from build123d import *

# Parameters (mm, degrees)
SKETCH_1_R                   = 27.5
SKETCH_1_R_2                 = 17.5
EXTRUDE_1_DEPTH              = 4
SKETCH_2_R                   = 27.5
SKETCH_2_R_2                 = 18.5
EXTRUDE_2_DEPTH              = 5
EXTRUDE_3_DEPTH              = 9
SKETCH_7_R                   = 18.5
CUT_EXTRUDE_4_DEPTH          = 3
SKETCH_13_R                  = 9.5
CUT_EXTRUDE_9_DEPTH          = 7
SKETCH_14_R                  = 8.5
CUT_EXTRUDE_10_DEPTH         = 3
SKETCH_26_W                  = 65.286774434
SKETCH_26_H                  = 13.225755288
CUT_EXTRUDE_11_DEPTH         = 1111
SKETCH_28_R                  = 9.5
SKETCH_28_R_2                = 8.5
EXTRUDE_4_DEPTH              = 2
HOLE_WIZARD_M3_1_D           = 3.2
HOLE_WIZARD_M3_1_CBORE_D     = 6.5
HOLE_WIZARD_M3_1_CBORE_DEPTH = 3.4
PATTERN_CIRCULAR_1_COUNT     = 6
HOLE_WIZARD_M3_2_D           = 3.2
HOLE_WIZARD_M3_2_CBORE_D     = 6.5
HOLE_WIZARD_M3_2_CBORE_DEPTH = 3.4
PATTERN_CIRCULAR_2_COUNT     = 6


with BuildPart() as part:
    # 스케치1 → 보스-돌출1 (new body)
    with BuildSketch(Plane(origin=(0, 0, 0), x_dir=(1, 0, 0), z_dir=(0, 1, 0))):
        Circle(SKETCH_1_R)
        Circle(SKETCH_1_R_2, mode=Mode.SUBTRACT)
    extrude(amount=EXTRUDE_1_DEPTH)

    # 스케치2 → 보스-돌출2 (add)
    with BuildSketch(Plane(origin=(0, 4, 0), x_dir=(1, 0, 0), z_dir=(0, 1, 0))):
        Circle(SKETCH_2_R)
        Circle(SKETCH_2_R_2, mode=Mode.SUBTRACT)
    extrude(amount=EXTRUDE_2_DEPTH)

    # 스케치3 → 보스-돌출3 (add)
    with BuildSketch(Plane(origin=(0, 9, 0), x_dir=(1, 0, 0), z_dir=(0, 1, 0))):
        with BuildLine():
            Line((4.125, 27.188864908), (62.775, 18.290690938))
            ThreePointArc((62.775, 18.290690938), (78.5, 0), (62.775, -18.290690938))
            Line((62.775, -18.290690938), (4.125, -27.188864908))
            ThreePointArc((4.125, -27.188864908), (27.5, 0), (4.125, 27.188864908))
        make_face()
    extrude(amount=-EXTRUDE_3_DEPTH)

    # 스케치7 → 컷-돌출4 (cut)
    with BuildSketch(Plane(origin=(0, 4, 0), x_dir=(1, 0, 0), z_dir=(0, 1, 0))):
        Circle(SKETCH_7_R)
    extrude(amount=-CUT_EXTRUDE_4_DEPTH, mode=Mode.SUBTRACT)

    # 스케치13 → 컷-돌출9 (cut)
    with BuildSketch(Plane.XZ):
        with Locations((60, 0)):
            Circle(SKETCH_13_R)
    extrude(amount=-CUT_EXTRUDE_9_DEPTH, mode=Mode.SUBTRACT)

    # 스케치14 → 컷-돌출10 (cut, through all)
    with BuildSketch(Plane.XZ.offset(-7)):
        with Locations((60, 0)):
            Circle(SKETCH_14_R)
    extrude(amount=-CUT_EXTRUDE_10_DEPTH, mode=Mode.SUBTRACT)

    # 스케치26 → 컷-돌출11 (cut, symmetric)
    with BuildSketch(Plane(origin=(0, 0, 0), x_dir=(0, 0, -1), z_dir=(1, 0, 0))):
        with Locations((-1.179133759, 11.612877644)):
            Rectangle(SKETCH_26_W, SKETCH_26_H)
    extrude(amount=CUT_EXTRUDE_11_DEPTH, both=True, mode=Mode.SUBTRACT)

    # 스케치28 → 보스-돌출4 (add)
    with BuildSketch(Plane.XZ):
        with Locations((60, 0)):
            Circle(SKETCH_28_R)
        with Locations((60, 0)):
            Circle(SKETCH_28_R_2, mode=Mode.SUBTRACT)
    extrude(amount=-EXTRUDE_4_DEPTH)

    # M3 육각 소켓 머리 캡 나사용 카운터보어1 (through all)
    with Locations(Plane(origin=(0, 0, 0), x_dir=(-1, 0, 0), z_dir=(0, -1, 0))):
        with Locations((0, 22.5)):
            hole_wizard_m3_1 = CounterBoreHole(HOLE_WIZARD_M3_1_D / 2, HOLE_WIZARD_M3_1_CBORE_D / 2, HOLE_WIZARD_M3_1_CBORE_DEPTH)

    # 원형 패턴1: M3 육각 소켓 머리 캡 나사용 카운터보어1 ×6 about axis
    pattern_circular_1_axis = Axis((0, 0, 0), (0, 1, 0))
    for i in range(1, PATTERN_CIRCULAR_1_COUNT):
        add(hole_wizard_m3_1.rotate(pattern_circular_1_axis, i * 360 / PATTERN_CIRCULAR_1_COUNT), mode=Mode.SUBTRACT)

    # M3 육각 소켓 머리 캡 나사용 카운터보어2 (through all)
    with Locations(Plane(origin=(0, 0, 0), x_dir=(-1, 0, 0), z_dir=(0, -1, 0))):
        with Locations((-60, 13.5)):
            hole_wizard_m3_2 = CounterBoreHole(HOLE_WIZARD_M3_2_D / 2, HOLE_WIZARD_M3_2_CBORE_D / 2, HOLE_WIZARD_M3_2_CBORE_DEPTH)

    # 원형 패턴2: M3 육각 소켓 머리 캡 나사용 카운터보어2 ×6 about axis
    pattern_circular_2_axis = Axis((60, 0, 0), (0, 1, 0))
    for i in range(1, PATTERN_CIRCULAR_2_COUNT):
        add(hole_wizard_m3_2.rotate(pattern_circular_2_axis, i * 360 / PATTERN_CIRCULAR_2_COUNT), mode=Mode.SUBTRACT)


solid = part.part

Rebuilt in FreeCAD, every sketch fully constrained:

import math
import FreeCAD as App
import Part
import Sketcher

V = App.Vector

doc = App.newDocument("Part")
params = doc.addObject("Spreadsheet::Sheet", "Params")
for row, (alias, value) in enumerate([
    ("sketch1_diameter", "55 mm"),
    ("sketch1_diameter2", "35 mm"),
    ("pad1_length", "4 mm"),
    ("sketch2_diameter", "55 mm"),
    ("sketch2_diameter2", "37 mm"),
    ("pad2_length", "5 mm"),
    ("sketch3_radius", "27.5 mm"),
    ("sketch3_radius2", "18.5 mm"),
    ("pad3_length", "9 mm"),
    ("sketch4_diameter", "37 mm"),
    ("pocket1_length", "3 mm"),
    ("sketch5_diameter", "19 mm"),
    ("pocket2_length", "7 mm"),
    ("sketch6_diameter", "17 mm"),
    ("pocket4_length", "2222 mm"),
    ("sketch8_diameter", "19 mm"),
    ("sketch8_diameter2", "17 mm"),
    ("pad4_length", "2 mm"),
    ("sketch9_diameter", "3.2 mm"),
    ("hole_diameter", "3.2 mm"),
    ("hole_cbore_diameter", "6.5 mm"),
    ("hole_cbore_depth", "3.4 mm"),
    ("sketch10_diameter", "3.2 mm"),
    ("hole2_diameter", "3.2 mm"),
    ("hole2_cbore_diameter", "6.5 mm"),
    ("hole2_cbore_depth", "3.4 mm"),
], start=1):
    params.set(f"A{row}", alias)
    params.set(f"B{row}", "=" + value)
    params.setAlias(f"B{row}", alias)

body = doc.addObject("PartDesign::Body", "Body")

# Sketch on XZ plane
sketch1 = body.newObject("Sketcher::SketchObject", "Sketch")
sketch1.AttachmentSupport = (doc.getObject("XZ_Plane"), [""])
sketch1.MapMode = "FlatFace"
sketch1.addGeometry(Part.Circle(V(0, 0, 0), V(0, 0, 1), 28), False)
sketch1.addGeometry(Part.Circle(V(0, 0, 0), V(0, 0, 1), 18), False)
sketch1.addConstraint(Sketcher.Constraint("Coincident", 0, 3, -1, 1))
sketch1.addConstraint(Sketcher.Constraint("Coincident", 1, 3, -1, 1))
sketch1.addConstraint(Sketcher.Constraint("Diameter", 0, 55.0))
sketch1.addConstraint(Sketcher.Constraint("Diameter", 1, 35.0))
sketch1.setExpression("Constraints[2]", "Params.sketch1_diameter")
sketch1.setExpression("Constraints[3]", "Params.sketch1_diameter2")
pad1 = body.newObject("PartDesign::Pad", "Pad")
pad1.Profile = sketch1
pad1.setExpression("Length", "Params.pad1_length")
pad1.Reversed = True

# Sketch on XZ plane
sketch2 = body.newObject("Sketcher::SketchObject", "Sketch001")
sketch2.AttachmentSupport = (doc.getObject("XZ_Plane"), [""])
sketch2.MapMode = "FlatFace"
sketch2.AttachmentOffset = App.Placement(V(0, 0, -4), App.Rotation())
sketch2.addGeometry(Part.Circle(V(0, 0, 0), V(0, 0, 1), 28), False)
sketch2.addGeometry(Part.Circle(V(0, 0, 0), V(0, 0, 1), 18), False)
sketch2.addConstraint(Sketcher.Constraint("Coincident", 0, 3, -1, 1))
sketch2.addConstraint(Sketcher.Constraint("Coincident", 1, 3, -1, 1))
sketch2.addConstraint(Sketcher.Constraint("Diameter", 0, 55.0))
sketch2.addConstraint(Sketcher.Constraint("Diameter", 1, 37.0))
sketch2.setExpression("Constraints[2]", "Params.sketch2_diameter")
sketch2.setExpression("Constraints[3]", "Params.sketch2_diameter2")
pad2 = body.newObject("PartDesign::Pad", "Pad001")
pad2.Profile = sketch2
pad2.setExpression("Length", "Params.pad2_length")
pad2.Reversed = True

# Sketch on XZ plane
sketch3 = body.newObject("Sketcher::SketchObject", "Sketch002")
sketch3.AttachmentSupport = (doc.getObject("XZ_Plane"), [""])
sketch3.MapMode = "FlatFace"
sketch3.AttachmentOffset = App.Placement(V(0, 0, -9), App.Rotation())
sketch3.addGeometry(Part.LineSegment(V(63, -18, 0), V(4, -27, 0)), False)
sketch3.addGeometry(Part.ArcOfCircle(Part.Circle(V(0, 0, 0), V(0, 0, 1), 28), math.radians(-81), math.radians(81)), False)
sketch3.addGeometry(Part.LineSegment(V(4, 27, 0), V(63, 18, 0)), False)
sketch3.addGeometry(Part.ArcOfCircle(Part.Circle(V(60, 0, 0), V(0, 0, 1), 18), math.radians(-81), math.radians(81)), False)
sketch3.addConstraint(Sketcher.Constraint("Tangent", 0, 2, 1, 1))
sketch3.addConstraint(Sketcher.Constraint("Tangent", 1, 2, 2, 1))
sketch3.addConstraint(Sketcher.Constraint("Tangent", 2, 2, 3, 2))
sketch3.addConstraint(Sketcher.Constraint("Tangent", 3, 1, 0, 1))
sketch3.addConstraint(Sketcher.Constraint("Coincident", 1, 3, -1, 1))
sketch3.addConstraint(Sketcher.Constraint("PointOnObject", 3, 3, -1))
sketch3.addConstraint(Sketcher.Constraint("Radius", 1, 27.5))
sketch3.addConstraint(Sketcher.Constraint("Radius", 3, 18.5))
sketch3.addConstraint(Sketcher.Constraint("DistanceX", -1, 1, 3, 3, 60.0))
sketch3.setExpression("Constraints[6]", "Params.sketch3_radius")
sketch3.setExpression("Constraints[7]", "Params.sketch3_radius2")
pad3 = body.newObject("PartDesign::Pad", "Pad002")
pad3.Profile = sketch3
pad3.setExpression("Length", "Params.pad3_length")

# Sketch on XZ plane
sketch4 = body.newObject("Sketcher::SketchObject", "Sketch003")
sketch4.AttachmentSupport = (doc.getObject("XZ_Plane"), [""])
sketch4.MapMode = "FlatFace"
sketch4.AttachmentOffset = App.Placement(V(0, 0, -4), App.Rotation())
sketch4.addGeometry(Part.Circle(V(0, 0, 0), V(0, 0, 1), 18), False)
sketch4.addConstraint(Sketcher.Constraint("Coincident", 0, 3, -1, 1))
sketch4.addConstraint(Sketcher.Constraint("Diameter", 0, 37.0))
sketch4.setExpression("Constraints[1]", "Params.sketch4_diameter")
pocket1 = body.newObject("PartDesign::Pocket", "Pocket")
pocket1.Profile = sketch4
pocket1.setExpression("Length", "Params.pocket1_length")
pocket1.Reversed = True

# Sketch on XZ plane
sketch5 = body.newObject("Sketcher::SketchObject", "Sketch004")
sketch5.AttachmentSupport = (doc.getObject("XZ_Plane"), [""])
sketch5.MapMode = "FlatFace"
sketch5.addGeometry(Part.Circle(V(60, 0, 0), V(0, 0, 1), 10), False)
sketch5.addConstraint(Sketcher.Constraint("PointOnObject", 0, 3, -1))
sketch5.addConstraint(Sketcher.Constraint("Diameter", 0, 19.0))
sketch5.addConstraint(Sketcher.Constraint("DistanceX", -1, 1, 0, 3, 60.0))
sketch5.setExpression("Constraints[1]", "Params.sketch5_diameter")
pocket2 = body.newObject("PartDesign::Pocket", "Pocket001")
pocket2.Profile = sketch5
pocket2.setExpression("Length", "Params.pocket2_length")

# Sketch on XZ plane
sketch6 = body.newObject("Sketcher::SketchObject", "Sketch005")
sketch6.AttachmentSupport = (doc.getObject("XZ_Plane"), [""])
sketch6.MapMode = "FlatFace"
sketch6.AttachmentOffset = App.Placement(V(0, 0, -7), App.Rotation())
sketch6.addGeometry(Part.Circle(V(60, 0, 0), V(0, 0, 1), 8), False)
sketch6.addConstraint(Sketcher.Constraint("PointOnObject", 0, 3, -1))
sketch6.addConstraint(Sketcher.Constraint("Diameter", 0, 17.0))
sketch6.addConstraint(Sketcher.Constraint("DistanceX", -1, 1, 0, 3, 60.0))
sketch6.setExpression("Constraints[1]", "Params.sketch6_diameter")
pocket3 = body.newObject("PartDesign::Pocket", "Pocket002")
pocket3.Profile = sketch6
pocket3.Type = "ThroughAll"

# Sketch on YZ plane
sketch7 = body.newObject("Sketcher::SketchObject", "Sketch006")
sketch7.AttachmentSupport = (doc.getObject("YZ_Plane"), [""])
sketch7.MapMode = "FlatFace"
sketch7.addGeometry(Part.LineSegment(V(18, 34, 0), V(5, 34, 0)), False)
sketch7.addGeometry(Part.LineSegment(V(5, 34, 0), V(5, -31, 0)), False)
sketch7.addGeometry(Part.LineSegment(V(5, -31, 0), V(18, -31, 0)), False)
sketch7.addGeometry(Part.LineSegment(V(18, -31, 0), V(18, 34, 0)), False)
sketch7.addConstraint(Sketcher.Constraint("Coincident", 0, 2, 1, 1))
sketch7.addConstraint(Sketcher.Constraint("Coincident", 1, 2, 2, 1))
sketch7.addConstraint(Sketcher.Constraint("Coincident", 2, 2, 3, 1))
sketch7.addConstraint(Sketcher.Constraint("Coincident", 3, 2, 0, 1))
sketch7.addConstraint(Sketcher.Constraint("Horizontal", 0))
sketch7.addConstraint(Sketcher.Constraint("Vertical", 1))
sketch7.addConstraint(Sketcher.Constraint("Horizontal", 2))
sketch7.addConstraint(Sketcher.Constraint("Vertical", 3))
sketch7.addConstraint(Sketcher.Constraint("DistanceX", -1, 1, 0, 2, 5.0))
sketch7.addConstraint(Sketcher.Constraint("DistanceX", 0, 2, 0, 1, 13.225755))
sketch7.addConstraint(Sketcher.Constraint("DistanceY", 1, 2, 1, 1, 65.286774))
sketch7.addConstraint(Sketcher.Constraint("DistanceY", -1, 1, 0, 2, 33.822521))
pocket4 = body.newObject("PartDesign::Pocket", "Pocket003")
pocket4.Profile = sketch7
pocket4.setExpression("Length", "Params.pocket4_length")
pocket4.Midplane = True

# Sketch on XZ plane
sketch8 = body.newObject("Sketcher::SketchObject", "Sketch007")
sketch8.AttachmentSupport = (doc.getObject("XZ_Plane"), [""])
sketch8.MapMode = "FlatFace"
sketch8.addGeometry(Part.Circle(V(60, 0, 0), V(0, 0, 1), 10), False)
sketch8.addGeometry(Part.Circle(V(60, 0, 0), V(0, 0, 1), 8), False)
sketch8.addConstraint(Sketcher.Constraint("Coincident", 1, 3, 0, 3))
sketch8.addConstraint(Sketcher.Constraint("PointOnObject", 0, 3, -1))
sketch8.addConstraint(Sketcher.Constraint("Diameter", 0, 19.0))
sketch8.addConstraint(Sketcher.Constraint("Diameter", 1, 17.0))
sketch8.addConstraint(Sketcher.Constraint("DistanceX", -1, 1, 0, 3, 60.0))
sketch8.setExpression("Constraints[2]", "Params.sketch8_diameter")
sketch8.setExpression("Constraints[3]", "Params.sketch8_diameter2")
pad4 = body.newObject("PartDesign::Pad", "Pad003")
pad4.Profile = sketch8
pad4.setExpression("Length", "Params.pad4_length")
pad4.Reversed = True

# Sketch on XZ plane
sketch9 = body.newObject("Sketcher::SketchObject", "Sketch008")
sketch9.AttachmentSupport = (doc.getObject("XZ_Plane"), [""])
sketch9.MapMode = "FlatFace"
sketch9.addGeometry(Part.Circle(V(0, -22.5, 0), V(0, 0, 1), 1.6), False)
sketch9.addConstraint(Sketcher.Constraint("PointOnObject", 0, 3, -2))
sketch9.addConstraint(Sketcher.Constraint("Diameter", 0, 3.2))
sketch9.addConstraint(Sketcher.Constraint("DistanceY", 0, 3, -1, 1, 22.5))
sketch9.setExpression("Constraints[1]", "Params.sketch9_diameter")
doc.recompute()
hole = body.newObject("PartDesign::Hole", "Hole")
hole.Profile = sketch9
hole.ThreadType = "None"
hole.setExpression("Diameter", "Params.hole_diameter")
hole.DepthType = "ThroughAll"
hole.HoleCutType = "Counterbore"
hole.setExpression("HoleCutDiameter", "Params.hole_cbore_diameter")
hole.setExpression("HoleCutDepth", "Params.hole_cbore_depth")
doc.recompute()

polarpattern = body.newObject("PartDesign::PolarPattern", "PolarPattern")
polarpattern.Originals = [hole]
polarpattern.Axis = (doc.getObject("Y_Axis"), [""])
polarpattern.Angle = 360
polarpattern.Occurrences = 6
body.Tip = polarpattern

# Sketch on XZ plane
sketch10 = body.newObject("Sketcher::SketchObject", "Sketch009")
sketch10.AttachmentSupport = (doc.getObject("XZ_Plane"), [""])
sketch10.MapMode = "FlatFace"
sketch10.addGeometry(Part.Circle(V(60, -13.5, 0), V(0, 0, 1), 1.6), False)
sketch10.addConstraint(Sketcher.Constraint("Diameter", 0, 3.2))
sketch10.addConstraint(Sketcher.Constraint("DistanceX", -1, 1, 0, 3, 60.0))
sketch10.addConstraint(Sketcher.Constraint("DistanceY", 0, 3, -1, 1, 13.5))
sketch10.setExpression("Constraints[0]", "Params.sketch10_diameter")
doc.recompute()
hole2 = body.newObject("PartDesign::Hole", "Hole001")
hole2.Profile = sketch10
hole2.ThreadType = "None"
hole2.setExpression("Diameter", "Params.hole2_diameter")
hole2.DepthType = "ThroughAll"
hole2.HoleCutType = "Counterbore"
hole2.setExpression("HoleCutDiameter", "Params.hole2_cbore_diameter")
hole2.setExpression("HoleCutDepth", "Params.hole2_cbore_depth")
doc.recompute()

datumline = body.newObject("PartDesign::Line", "DatumLine")
datumline.Placement = App.Placement(V(60, 0, 0), App.Rotation(V(0, 0, 1), V(0, 1, 0)))
polarpattern2 = body.newObject("PartDesign::PolarPattern", "PolarPattern001")
polarpattern2.Originals = [hole2]
polarpattern2.Axis = (datumline, [""])
polarpattern2.Angle = 360
polarpattern2.Occurrences = 6
body.Tip = polarpattern2

doc.recompute()
